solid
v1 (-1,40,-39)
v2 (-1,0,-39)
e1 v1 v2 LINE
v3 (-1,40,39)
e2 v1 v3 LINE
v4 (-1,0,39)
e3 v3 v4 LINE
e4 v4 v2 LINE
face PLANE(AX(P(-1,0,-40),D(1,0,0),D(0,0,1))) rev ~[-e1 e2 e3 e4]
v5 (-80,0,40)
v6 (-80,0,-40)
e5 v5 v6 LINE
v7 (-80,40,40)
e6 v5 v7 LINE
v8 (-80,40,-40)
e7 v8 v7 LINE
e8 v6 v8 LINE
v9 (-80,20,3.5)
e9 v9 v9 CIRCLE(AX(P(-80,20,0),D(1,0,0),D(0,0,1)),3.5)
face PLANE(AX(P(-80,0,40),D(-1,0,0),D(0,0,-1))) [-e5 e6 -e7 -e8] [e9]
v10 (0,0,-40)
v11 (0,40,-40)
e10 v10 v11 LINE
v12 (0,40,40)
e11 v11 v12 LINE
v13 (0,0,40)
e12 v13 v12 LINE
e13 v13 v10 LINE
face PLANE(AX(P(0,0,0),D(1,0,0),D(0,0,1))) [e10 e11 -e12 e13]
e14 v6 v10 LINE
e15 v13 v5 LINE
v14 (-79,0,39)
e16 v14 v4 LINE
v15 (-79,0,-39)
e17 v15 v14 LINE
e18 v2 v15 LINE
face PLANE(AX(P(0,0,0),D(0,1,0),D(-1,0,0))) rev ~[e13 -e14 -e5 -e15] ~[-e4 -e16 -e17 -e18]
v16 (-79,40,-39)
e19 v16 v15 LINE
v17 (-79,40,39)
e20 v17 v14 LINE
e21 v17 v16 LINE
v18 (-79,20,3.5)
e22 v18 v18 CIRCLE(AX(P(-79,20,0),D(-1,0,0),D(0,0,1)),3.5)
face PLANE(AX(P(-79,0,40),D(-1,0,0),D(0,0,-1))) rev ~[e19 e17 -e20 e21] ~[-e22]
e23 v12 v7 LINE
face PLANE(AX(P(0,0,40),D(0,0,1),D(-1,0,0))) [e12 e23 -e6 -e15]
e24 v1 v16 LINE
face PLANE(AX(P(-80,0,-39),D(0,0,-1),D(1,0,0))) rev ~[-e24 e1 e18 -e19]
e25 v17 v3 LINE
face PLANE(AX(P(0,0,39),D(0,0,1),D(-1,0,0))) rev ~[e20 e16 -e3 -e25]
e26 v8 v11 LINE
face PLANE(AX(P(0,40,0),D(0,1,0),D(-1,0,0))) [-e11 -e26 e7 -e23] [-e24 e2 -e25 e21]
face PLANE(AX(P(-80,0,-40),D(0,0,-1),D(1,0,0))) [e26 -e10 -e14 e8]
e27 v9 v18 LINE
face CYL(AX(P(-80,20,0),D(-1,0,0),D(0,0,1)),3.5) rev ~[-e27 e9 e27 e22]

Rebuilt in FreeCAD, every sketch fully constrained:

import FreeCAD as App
import Part
import Sketcher

V = App.Vector
Q = App.Units.Quantity


def faces_at(feature, points):
    """Names of the faces that lie closest to the given points."""
    faces = feature.Shape.Faces
    near = lambda p: min(range(len(faces)), key=lambda i: faces[i].distToShape(Part.Vertex(*p))[0])
    return sorted({f"Face{near(p) + 1}" for p in points})


def add_polygon(sketch, points):
    """Adds a closed chain of lines whose ends are joined by coincident constraints."""
    first, n = sketch.GeometryCount, len(points)
    for a, b in zip(points, points[1:] + points[:1]):
        sketch.addGeometry(Part.LineSegment(App.Vector(*a, 0), App.Vector(*b, 0)), False)
    for i in range(n):
        sketch.addConstraint(Sketcher.Constraint("Coincident", first + i, 2, first + (i + 1) % n, 1))

doc = App.newDocument("Part")
body = doc.addObject("PartDesign::Body", "Body")

# Sketch on XZ plane
sketch1 = body.newObject("Sketcher::SketchObject", "Sketch")
sketch1.AttachmentSupport = (doc.getObject("XZ_Plane"), [""])
sketch1.MapMode = "FlatFace"
add_polygon(sketch1, [(0, 40), (0, -40), (-80, -40), (-80, 40)])  # lines 0-3
sketch1.addConstraint(Sketcher.Constraint("Vertical", 0))
sketch1.addConstraint(Sketcher.Constraint("Horizontal", 1))
sketch1.addConstraint(Sketcher.Constraint("Vertical", 2))
sketch1.addConstraint(Sketcher.Constraint("Horizontal", 3))
sketch1.addConstraint(Sketcher.Constraint("Symmetric", 0, 2, 3, 2, -1, 1))
sketch1.addConstraint(Sketcher.Constraint("Equal", 3, 0))
sketch1.addConstraint(Sketcher.Constraint("DistanceX", 1, 2, 1, 1, Q("80 mm")))
pad1 = body.newObject("PartDesign::Pad", "Pad")
pad1.Profile = sketch1
pad1.Length = 40
pad1.Reversed = True
doc.recompute()

thickness = body.newObject("PartDesign::Thickness", "Thickness")
thickness.Base = (pad1, faces_at(pad1, [(-26.667, 0, -13.333), (-26.667, 40, -13.333)]))
thickness.Value = 1
thickness.Reversed = True
thickness.Join = "Intersection"

# Sketch on YZ plane
sketch2 = body.newObject("Sketcher::SketchObject", "Sketch001")
sketch2.AttachmentSupport = (doc.getObject("YZ_Plane"), [""])
sketch2.MapMode = "FlatFace"
sketch2.AttachmentOffset = App.Placement(V(0, 0, -80), App.Rotation())
sketch2.addGeometry(Part.Circle(V(20, 0, 0), V(0, 0, 1), 3.5), False)
sketch2.addConstraint(Sketcher.Constraint("PointOnObject", 0, 3, -1))
sketch2.addConstraint(Sketcher.Constraint("Diameter", 0, Q("7 mm")))
sketch2.addConstraint(Sketcher.Constraint("DistanceX", -1, 1, 0, 3, Q("20 mm")))
pocket1 = body.newObject("PartDesign::Pocket", "Pocket")
pocket1.Profile = sketch2
pocket1.Length = 1
pocket1.Reversed = True

doc.recompute()
